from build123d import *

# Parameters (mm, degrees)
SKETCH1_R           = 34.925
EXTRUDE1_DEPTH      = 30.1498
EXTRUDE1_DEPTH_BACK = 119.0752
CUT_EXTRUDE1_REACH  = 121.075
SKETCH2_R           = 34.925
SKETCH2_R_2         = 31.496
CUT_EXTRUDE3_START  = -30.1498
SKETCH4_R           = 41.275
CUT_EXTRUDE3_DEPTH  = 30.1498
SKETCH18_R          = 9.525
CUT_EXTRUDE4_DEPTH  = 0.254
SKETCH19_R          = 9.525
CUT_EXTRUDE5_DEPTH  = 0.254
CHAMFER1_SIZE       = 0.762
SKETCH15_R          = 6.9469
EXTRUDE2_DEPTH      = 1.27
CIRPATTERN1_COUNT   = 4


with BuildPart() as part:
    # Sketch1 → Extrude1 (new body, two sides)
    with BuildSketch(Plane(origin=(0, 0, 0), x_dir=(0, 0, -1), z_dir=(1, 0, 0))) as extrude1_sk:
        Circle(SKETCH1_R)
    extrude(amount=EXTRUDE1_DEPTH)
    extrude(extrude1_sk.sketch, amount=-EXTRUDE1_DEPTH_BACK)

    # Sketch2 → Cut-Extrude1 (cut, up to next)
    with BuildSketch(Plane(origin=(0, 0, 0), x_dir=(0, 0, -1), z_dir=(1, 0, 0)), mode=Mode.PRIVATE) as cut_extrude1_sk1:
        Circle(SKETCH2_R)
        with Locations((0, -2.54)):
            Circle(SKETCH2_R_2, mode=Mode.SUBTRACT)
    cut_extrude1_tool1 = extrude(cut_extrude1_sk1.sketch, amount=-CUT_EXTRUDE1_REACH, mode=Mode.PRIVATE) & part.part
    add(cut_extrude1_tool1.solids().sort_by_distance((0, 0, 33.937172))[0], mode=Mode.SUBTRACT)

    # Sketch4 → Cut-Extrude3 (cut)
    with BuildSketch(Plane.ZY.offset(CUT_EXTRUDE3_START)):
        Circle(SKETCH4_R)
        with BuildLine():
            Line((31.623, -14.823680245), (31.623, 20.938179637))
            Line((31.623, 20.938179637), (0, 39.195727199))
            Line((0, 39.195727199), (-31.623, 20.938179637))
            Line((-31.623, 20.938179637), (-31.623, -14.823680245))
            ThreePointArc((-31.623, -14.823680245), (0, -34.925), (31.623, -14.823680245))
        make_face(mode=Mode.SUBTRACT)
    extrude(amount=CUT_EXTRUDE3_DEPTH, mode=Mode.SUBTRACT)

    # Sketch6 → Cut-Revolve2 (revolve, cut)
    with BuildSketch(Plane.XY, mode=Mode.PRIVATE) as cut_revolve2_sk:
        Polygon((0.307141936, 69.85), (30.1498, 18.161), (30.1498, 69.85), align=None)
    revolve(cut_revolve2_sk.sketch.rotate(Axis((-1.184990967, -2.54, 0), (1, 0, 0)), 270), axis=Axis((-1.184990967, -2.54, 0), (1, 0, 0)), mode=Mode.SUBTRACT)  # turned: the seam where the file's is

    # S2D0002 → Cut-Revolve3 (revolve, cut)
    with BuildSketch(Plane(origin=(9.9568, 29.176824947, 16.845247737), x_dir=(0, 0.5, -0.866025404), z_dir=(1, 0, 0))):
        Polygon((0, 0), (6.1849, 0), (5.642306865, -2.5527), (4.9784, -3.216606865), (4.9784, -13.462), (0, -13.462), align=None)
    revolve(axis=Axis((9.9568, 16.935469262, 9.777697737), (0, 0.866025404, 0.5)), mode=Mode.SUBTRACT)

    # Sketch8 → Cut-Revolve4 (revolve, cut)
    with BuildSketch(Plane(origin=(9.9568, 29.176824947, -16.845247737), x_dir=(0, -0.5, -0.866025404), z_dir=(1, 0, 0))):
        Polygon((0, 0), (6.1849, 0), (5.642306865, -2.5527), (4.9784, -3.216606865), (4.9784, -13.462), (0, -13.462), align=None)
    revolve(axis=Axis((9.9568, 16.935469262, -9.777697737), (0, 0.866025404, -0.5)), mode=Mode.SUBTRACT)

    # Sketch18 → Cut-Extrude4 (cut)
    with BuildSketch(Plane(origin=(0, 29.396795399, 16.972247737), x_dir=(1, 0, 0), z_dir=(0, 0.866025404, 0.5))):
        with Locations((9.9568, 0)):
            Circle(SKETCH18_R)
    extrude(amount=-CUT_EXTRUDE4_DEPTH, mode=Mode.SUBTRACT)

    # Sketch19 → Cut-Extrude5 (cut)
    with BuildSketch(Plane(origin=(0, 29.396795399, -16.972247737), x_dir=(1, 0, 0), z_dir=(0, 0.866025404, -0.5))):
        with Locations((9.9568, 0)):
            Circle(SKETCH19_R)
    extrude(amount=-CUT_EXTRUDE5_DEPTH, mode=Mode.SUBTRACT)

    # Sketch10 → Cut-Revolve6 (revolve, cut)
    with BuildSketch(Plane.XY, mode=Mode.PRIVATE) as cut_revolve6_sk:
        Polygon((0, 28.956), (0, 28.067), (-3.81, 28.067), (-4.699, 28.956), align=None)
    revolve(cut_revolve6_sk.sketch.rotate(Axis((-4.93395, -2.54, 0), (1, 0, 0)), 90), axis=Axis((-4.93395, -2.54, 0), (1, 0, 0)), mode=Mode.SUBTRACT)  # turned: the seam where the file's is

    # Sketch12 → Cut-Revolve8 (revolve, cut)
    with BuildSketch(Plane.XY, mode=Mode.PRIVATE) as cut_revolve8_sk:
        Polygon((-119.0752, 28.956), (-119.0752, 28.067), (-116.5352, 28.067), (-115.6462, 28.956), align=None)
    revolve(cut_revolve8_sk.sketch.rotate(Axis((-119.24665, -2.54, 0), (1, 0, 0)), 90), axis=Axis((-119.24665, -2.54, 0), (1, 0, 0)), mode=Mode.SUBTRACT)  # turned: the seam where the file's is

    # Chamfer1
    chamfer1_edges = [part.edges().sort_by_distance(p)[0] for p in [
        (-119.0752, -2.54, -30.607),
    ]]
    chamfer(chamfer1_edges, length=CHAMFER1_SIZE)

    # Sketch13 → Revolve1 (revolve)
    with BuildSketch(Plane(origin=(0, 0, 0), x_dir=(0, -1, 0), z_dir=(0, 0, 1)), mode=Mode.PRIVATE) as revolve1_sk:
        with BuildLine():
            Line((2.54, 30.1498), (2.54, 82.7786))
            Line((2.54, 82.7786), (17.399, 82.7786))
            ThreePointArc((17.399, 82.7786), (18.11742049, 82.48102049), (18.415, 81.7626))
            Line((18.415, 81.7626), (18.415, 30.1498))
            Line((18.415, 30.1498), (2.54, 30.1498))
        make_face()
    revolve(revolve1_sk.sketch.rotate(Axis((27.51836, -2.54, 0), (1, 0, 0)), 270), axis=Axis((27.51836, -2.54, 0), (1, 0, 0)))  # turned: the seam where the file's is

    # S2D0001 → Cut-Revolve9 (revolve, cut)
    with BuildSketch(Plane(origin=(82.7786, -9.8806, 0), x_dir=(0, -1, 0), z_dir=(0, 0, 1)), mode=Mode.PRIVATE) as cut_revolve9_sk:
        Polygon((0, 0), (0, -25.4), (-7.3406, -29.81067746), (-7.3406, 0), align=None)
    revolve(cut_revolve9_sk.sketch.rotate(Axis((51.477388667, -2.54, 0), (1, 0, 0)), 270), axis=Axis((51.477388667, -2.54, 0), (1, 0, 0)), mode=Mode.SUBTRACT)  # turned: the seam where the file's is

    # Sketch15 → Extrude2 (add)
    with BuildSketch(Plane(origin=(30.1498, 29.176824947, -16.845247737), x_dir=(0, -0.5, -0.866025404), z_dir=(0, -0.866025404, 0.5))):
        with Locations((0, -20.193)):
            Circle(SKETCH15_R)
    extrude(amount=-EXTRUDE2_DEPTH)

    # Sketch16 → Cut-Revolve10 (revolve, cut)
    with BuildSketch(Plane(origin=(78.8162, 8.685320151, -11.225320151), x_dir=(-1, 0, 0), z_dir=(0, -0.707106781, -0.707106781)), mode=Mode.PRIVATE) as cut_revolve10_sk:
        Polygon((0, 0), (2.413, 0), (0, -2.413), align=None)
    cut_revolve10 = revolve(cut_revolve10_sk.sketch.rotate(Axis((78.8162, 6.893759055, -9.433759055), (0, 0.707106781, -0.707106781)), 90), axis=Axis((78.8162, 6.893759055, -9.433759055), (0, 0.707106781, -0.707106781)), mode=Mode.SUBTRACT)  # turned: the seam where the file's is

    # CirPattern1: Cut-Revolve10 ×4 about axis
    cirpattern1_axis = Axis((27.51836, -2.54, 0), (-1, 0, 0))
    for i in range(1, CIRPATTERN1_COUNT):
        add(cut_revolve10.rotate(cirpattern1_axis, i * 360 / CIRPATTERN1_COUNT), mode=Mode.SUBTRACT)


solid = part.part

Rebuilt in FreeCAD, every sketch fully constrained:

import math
import FreeCAD as App
import Part
import Sketcher
from FreeCAD import Vector
Q = App.Units.Quantity


def edges_at(feature, points):
    """Names of the edges that pass closest to the given points."""
    edges = feature.Shape.Edges
    near = lambda p: min(range(len(edges)), key=lambda i: edges[i].distToShape(Part.Vertex(*p))[0])
    return sorted({f"Edge{near(p) + 1}" for p in points})

doc = App.newDocument("Part")
body = doc.addObject("PartDesign::Body", "Body")

# Sketch on YZ plane
sketch1 = body.newObject("Sketcher::SketchObject", "Sketch")
sketch1.AttachmentSupport = (doc.getObject("YZ_Plane"), [""])
sketch1.MapMode = "FlatFace"
sketch1.addGeometry(Part.Circle(Vector(0, 0, 0), Vector(0, 0, 1), 35), False)
sketch1.addConstraint(Sketcher.Constraint("Coincident", 0, 3, -1, 1))
sketch1.addConstraint(Sketcher.Constraint("Diameter", 0, Q("2.75 in")))
pad1 = body.newObject("PartDesign::Pad", "Pad")
pad1.Profile = sketch1
pad1.Type = "TwoLengths"
pad1.Length = Q("1.187 in")
pad1.Length2 = Q("4.688 in")

# Sketch on YZ plane
sketch2 = body.newObject("Sketcher::SketchObject", "Sketch001")
sketch2.AttachmentSupport = (doc.getObject("YZ_Plane"), [""])
sketch2.MapMode = "FlatFace"
sketch2.addGeometry(Part.Circle(Vector(0, 0, 0), Vector(0, 0, 1), 35), False)
sketch2.addGeometry(Part.Circle(Vector(-3, 0, 0), Vector(0, 0, 1), 31), False)
sketch2.addConstraint(Sketcher.Constraint("Coincident", 0, 3, -1, 1))
sketch2.addConstraint(Sketcher.Constraint("PointOnObject", 1, 3, -1))
sketch2.addConstraint(Sketcher.Constraint("Diameter", 0, Q("2.75 in")))
sketch2.addConstraint(Sketcher.Constraint("Diameter", 1, Q("2.48 in")))
sketch2.addConstraint(Sketcher.Constraint("DistanceX", 1, 3, -1, 1, Q("0.1 in")))
pocket1 = body.newObject("PartDesign::Pocket", "Pocket")
pocket1.Profile = sketch2
pocket1.Type = "UpToFirst"

# Sketch on YZ plane
sketch3 = body.newObject("Sketcher::SketchObject", "Sketch002")
sketch3.AttachmentSupport = (doc.getObject("YZ_Plane"), [""])
sketch3.MapMode = "FlatFace"
sketch3.AttachmentOffset = App.Placement(Vector(0, 0, 1.187 * 25.4), App.Rotation())
sketch3.addGeometry(Part.Circle(Vector(0, 0, 0), Vector(0, 0, 1), 41), False)
sketch3.addGeometry(Part.LineSegment(Vector(21, 32, 0), Vector(-15, 32, 0)), False)
sketch3.addGeometry(Part.ArcOfCircle(Part.Circle(Vector(0, 0, 0), Vector(0, 0, 1), 35), math.radians(115), math.radians(245)), False)
sketch3.addGeometry(Part.LineSegment(Vector(-15, -32, 0), Vector(21, -32, 0)), False)
sketch3.addGeometry(Part.LineSegment(Vector(21, -32, 0), Vector(39, 0, 0)), False)
sketch3.addGeometry(Part.LineSegment(Vector(39, 0, 0), Vector(21, 32, 0)), False)
sketch3.addConstraint(Sketcher.Constraint("Coincident", 1, 2, 2, 1))
sketch3.addConstraint(Sketcher.Constraint("Coincident", 2, 2, 3, 1))
sketch3.addConstraint(Sketcher.Constraint("Coincident", 3, 2, 4, 1))
sketch3.addConstraint(Sketcher.Constraint("Coincident", 4, 2, 5, 1))
sketch3.addConstraint(Sketcher.Constraint("Coincident", 5, 2, 1, 1))
sketch3.addConstraint(Sketcher.Constraint("Horizontal", 1))
sketch3.addConstraint(Sketcher.Constraint("Horizontal", 3))
sketch3.addConstraint(Sketcher.Constraint("Coincident", 0, 3, -1, 1))
sketch3.addConstraint(Sketcher.Constraint("Coincident", 2, 3, -1, 1))
sketch3.addConstraint(Sketcher.Constraint("Symmetric", 3, 2, 5, 2, -1))
sketch3.addConstraint(Sketcher.Constraint("PointOnObject", 4, 2, -1))
sketch3.addConstraint(Sketcher.Constraint("Diameter", 0, Q("3.25 in")))
sketch3.addConstraint(Sketcher.Constraint("Angle", 4, Q("60 deg")))
sketch3.addConstraint(Sketcher.Constraint("Radius", 2, Q("1.375 in")))
sketch3.addConstraint(Sketcher.Constraint("DistanceY", 2, 2, 1, 2, Q("2.49 in")))
sketch3.addConstraint(Sketcher.Constraint("DistanceX", 1, 2, 1, 1, Q("35.76186 mm")))
pocket2 = body.newObject("PartDesign::Pocket", "Pocket001")
pocket2.Profile = sketch3
pocket2.Length = Q("1.187 in")

# Sketch on XY plane
sketch4 = body.newObject("Sketcher::SketchObject", "Sketch003")
sketch4.AttachmentSupport = (doc.getObject("XY_Plane"), [""])
sketch4.MapMode = "FlatFace"
sketch4.addGeometry(Part.LineSegment(Vector(0, 70, 0), Vector(30, 18, 0)), False)
sketch4.addGeometry(Part.LineSegment(Vector(30, 18, 0), Vector(30, 70, 0)), False)
sketch4.addGeometry(Part.LineSegment(Vector(30, 70, 0), Vector(0, 70, 0)), False)
sketch4.addGeometry(Part.LineSegment(Vector(0, -3, 0), Vector(30, -3, 0)), True)  # axis
sketch4.addConstraint(Sketcher.Constraint("Coincident", 0, 2, 1, 1))
sketch4.addConstraint(Sketcher.Constraint("Coincident", 1, 2, 2, 1))
sketch4.addConstraint(Sketcher.Constraint("Coincident", 2, 2, 0, 1))
sketch4.addConstraint(Sketcher.Constraint("Vertical", 1))
sketch4.addConstraint(Sketcher.Constraint("Horizontal", 2))
sketch4.addConstraint(Sketcher.Constraint("Horizontal", 3))
sketch4.addConstraint(Sketcher.Constraint("Vertical", 2, 2, 3, 1))
sketch4.addConstraint(Sketcher.Constraint("Vertical", 1, 2, 3, 2))
sketch4.addConstraint(Sketcher.Constraint("Angle", 0, Q("-60 deg")))
sketch4.addConstraint(Sketcher.Constraint("DistanceY", 3, 1, -1, 1, Q("0.1 in")))
sketch4.addConstraint(Sketcher.Constraint("DistanceY", 1, 1, 1, 2, Q("2.035 in")))
sketch4.addConstraint(Sketcher.Constraint("DistanceY", -1, 1, 1, 2, Q("2.75 in")))
sketch4.addConstraint(Sketcher.Constraint("DistanceX", -1, 1, 0, 2, Q("1.187 in")))
groove = body.newObject("PartDesign::Groove", "Groove")
groove.Profile = sketch4
groove.ReferenceAxis = (sketch4, ["Axis0"])
groove.Angle = 360

# Sketch on YZ plane
sketch5 = body.newObject("Sketcher::SketchObject", "Sketch004")
sketch5.AttachmentSupport = (doc.getObject("YZ_Plane"), [""])
sketch5.MapMode = "FlatFace"
sketch5.AttachmentOffset = App.Placement(Vector(0, 0, 0.392 * 25.4), App.Rotation())
sketch5.addGeometry(Part.LineSegment(Vector(32.3, 11.5, 0), Vector(29.2, 16.8, 0)), False)
sketch5.addGeometry(Part.LineSegment(Vector(29.2, 16.8, 0), Vector(17.5, 10.1, 0)), False)
sketch5.addGeometry(Part.LineSegment(Vector(17.5, 10.1, 0), Vector(20, 5.8, 0)), False)
sketch5.addGeometry(Part.LineSegment(Vector(20, 5.8, 0), Vector(28.9, 10.9, 0)), False)
sketch5.addGeometry(Part.LineSegment(Vector(28.9, 10.9, 0), Vector(29.8, 10.7, 0)), False)
sketch5.addGeometry(Part.LineSegment(Vector(29.8, 10.7, 0), Vector(32.3, 11.5, 0)), False)
sketch5.addGeometry(Part.LineSegment(Vector(17.5, 10.1, 0), Vector(29.2, 16.8, 0)), True)  # axis
sketch5.addConstraint(Sketcher.Constraint("Coincident", 0, 2, 1, 1))
sketch5.addConstraint(Sketcher.Constraint("Coincident", 1, 2, 2, 1))
sketch5.addConstraint(Sketcher.Constraint("Coincident", 2, 2, 3, 1))
sketch5.addConstraint(Sketcher.Constraint("Coincident", 3, 2, 4, 1))
sketch5.addConstraint(Sketcher.Constraint("Coincident", 4, 2, 5, 1))
sketch5.addConstraint(Sketcher.Constraint("Coincident", 5, 2, 0, 1))
sketch5.addConstraint(Sketcher.Constraint("Coincident", 6, 1, 1, 2))
sketch5.addConstraint(Sketcher.Constraint("Coincident", 6, 2, 0, 2))
sketch5.addConstraint(Sketcher.Constraint("Perpendicular", 0, 1))
sketch5.addConstraint(Sketcher.Constraint("Perpendicular", 1, 2))
sketch5.addConstraint(Sketcher.Constraint("Perpendicular", 2, 3))
sketch5.addConstraint(Sketcher.Constraint("Angle", 0, Q("120 deg")))
sketch5.addConstraint(Sketcher.Constraint("Angle", 4, Q("-15 deg")))
sketch5.addConstraint(Sketcher.Constraint("Angle", 5, Q("18 deg")))
sketch5.addConstraint(Sketcher.Constraint("Distance", 1, Q("0.53 in")))
sketch5.addConstraint(Sketcher.Constraint("Distance", 2, Q("0.196 in")))
sketch5.addConstraint(Sketcher.Constraint("Distance", 0, Q("0.2435 in")))
sketch5.addConstraint(Sketcher.Constraint("DistanceX", 4, 2, 5, 2, Q("2.482 mm")))
sketch5.addConstraint(Sketcher.Constraint("DistanceX", -1, 1, 1, 2, Q("17.518391 mm")))
sketch5.addConstraint(Sketcher.Constraint("DistanceY", -1, 1, 0, 2, Q("16.845248 mm")))
groove2 = body.newObject("PartDesign::Groove", "Groove001")
groove2.Profile = sketch5
groove2.ReferenceAxis = (sketch5, ["Axis0"])
groove2.Angle = 360

# Sketch on YZ plane
sketch6 = body.newObject("Sketcher::SketchObject", "Sketch005")
sketch6.AttachmentSupport = (doc.getObject("YZ_Plane"), [""])
sketch6.MapMode = "FlatFace"
sketch6.AttachmentOffset = App.Placement(Vector(0, 0, 0.392 * 25.4), App.Rotation())
sketch6.addGeometry(Part.LineSegment(Vector(26.1, -22.2, 0), Vector(29.2, -16.8, 0)), False)
sketch6.addGeometry(Part.LineSegment(Vector(29.2, -16.8, 0), Vector(17.5, -10.1, 0)), False)
sketch6.addGeometry(Part.LineSegment(Vector(17.5, -10.1, 0), Vector(15, -14.4, 0)), False)
sketch6.addGeometry(Part.LineSegment(Vector(15, -14.4, 0), Vector(23.9, -19.5, 0)), False)
sketch6.addGeometry(Part.LineSegment(Vector(23.9, -19.5, 0), Vector(24.1, -20.5, 0)), False)
sketch6.addGeometry(Part.LineSegment(Vector(24.1, -20.5, 0), Vector(26.1, -22.2, 0)), False)
sketch6.addGeometry(Part.LineSegment(Vector(17.5, -10.1, 0), Vector(29.2, -16.8, 0)), True)  # axis
sketch6.addConstraint(Sketcher.Constraint("Coincident", 0, 2, 1, 1))
sketch6.addConstraint(Sketcher.Constraint("Coincident", 1, 2, 2, 1))
sketch6.addConstraint(Sketcher.Constraint("Coincident", 2, 2, 3, 1))
sketch6.addConstraint(Sketcher.Constraint("Coincident", 3, 2, 4, 1))
sketch6.addConstraint(Sketcher.Constraint("Coincident", 4, 2, 5, 1))
sketch6.addConstraint(Sketcher.Constraint("Coincident", 5, 2, 0, 1))
sketch6.addConstraint(Sketcher.Constraint("Coincident", 6, 1, 1, 2))
sketch6.addConstraint(Sketcher.Constraint("Coincident", 6, 2, 0, 2))
sketch6.addConstraint(Sketcher.Constraint("Perpendicular", 0, 1))
sketch6.addConstraint(Sketcher.Constraint("Perpendicular", 1, 2))
sketch6.addConstraint(Sketcher.Constraint("Perpendicular", 2, 3))
sketch6.addConstraint(Sketcher.Constraint("Angle", 0, Q("60 deg")))
sketch6.addConstraint(Sketcher.Constraint("Angle", 4, Q("-75 deg")))
sketch6.addConstraint(Sketcher.Constraint("Angle", 5, Q("-42 deg")))
sketch6.addConstraint(Sketcher.Constraint("Distance", 1, Q("0.53 in")))
sketch6.addConstraint(Sketcher.Constraint("Distance", 2, Q("0.196 in")))
sketch6.addConstraint(Sketcher.Constraint("Distance", 0, Q("0.2435 in")))
sketch6.addConstraint(Sketcher.Constraint("Distance", 5, Q("2.609729 mm")))
sketch6.addConstraint(Sketcher.Constraint("DistanceX", -1, 1, 1, 2, Q("17.518391 mm")))
sketch6.addConstraint(Sketcher.Constraint("DistanceY", 2, 2, -1, 1, Q("14.425669 mm")))
groove3 = body.newObject("PartDesign::Groove", "Groove002")
groove3.Profile = sketch6
groove3.ReferenceAxis = (sketch6, ["Axis0"])
groove3.Angle = 360

# Sketch on an angled plane
sketch7 = body.newObject("Sketcher::SketchObject", "Sketch006")
sketch7.Placement = App.Placement(Vector(0, 29.396795, 16.972248), App.Rotation(Vector(1, 0, 0), Vector(0, 0.5, -0.866025404), Vector(0, 0.866025404, 0.5), "ZXY"))
sketch7.addGeometry(Part.Circle(Vector(10, 0, 0), Vector(0, 0, 1), 10), False)
sketch7.addConstraint(Sketcher.Constraint("PointOnObject", 0, 3, -1))
sketch7.addConstraint(Sketcher.Constraint("Diameter", 0, Q("0.75 in")))
sketch7.addConstraint(Sketcher.Constraint("DistanceX", -1, 1, 0, 3, Q("0.392 in")))
pocket3 = body.newObject("PartDesign::Pocket", "Pocket002")
pocket3.Profile = sketch7
pocket3.Length = Q("0.01 in")

# Sketch on an angled plane
sketch8 = body.newObject("Sketcher::SketchObject", "Sketch007")
sketch8.Placement = App.Placement(Vector(0, 29.396795, -16.972248), App.Rotation(Vector(1, 0, 0), Vector(0, -0.5, -0.866025404), Vector(0, 0.866025404, -0.5), "ZXY"))
sketch8.addGeometry(Part.Circle(Vector(10, 0, 0), Vector(0, 0, 1), 10), False)
sketch8.addConstraint(Sketcher.Constraint("PointOnObject", 0, 3, -1))
sketch8.addConstraint(Sketcher.Constraint("Diameter", 0, Q("0.75 in")))
sketch8.addConstraint(Sketcher.Constraint("DistanceX", -1, 1, 0, 3, Q("0.392 in")))
pocket4 = body.newObject("PartDesign::Pocket", "Pocket003")
pocket4.Profile = sketch8
pocket4.Length = Q("0.01 in")

# Sketch on XY plane
sketch9 = body.newObject("Sketcher::SketchObject", "Sketch008")
sketch9.AttachmentSupport = (doc.getObject("XY_Plane"), [""])
sketch9.MapMode = "FlatFace"
sketch9.addGeometry(Part.LineSegment(Vector(0, 28.1, 0), Vector(0, 29, 0)), False)
sketch9.addGeometry(Part.LineSegment(Vector(0, 29, 0), Vector(-4.7, 29, 0)), False)
sketch9.addGeometry(Part.LineSegment(Vector(-4.7, 29, 0), Vector(-3.8, 28.1, 0)), False)
sketch9.addGeometry(Part.LineSegment(Vector(-3.8, 28.1, 0), Vector(0, 28.1, 0)), False)
sketch9.addGeometry(Part.LineSegment(Vector(-4.7, -2.5, 0), Vector(0, -2.5, 0)), True)  # axis
sketch9.addConstraint(Sketcher.Constraint("Coincident", 0, 2, 1, 1))
sketch9.addConstraint(Sketcher.Constraint("Coincident", 1, 2, 2, 1))
sketch9.addConstraint(Sketcher.Constraint("Coincident", 2, 2, 3, 1))
sketch9.addConstraint(Sketcher.Constraint("Coincident", 3, 2, 0, 1))
sketch9.addConstraint(Sketcher.Constraint("Vertical", 0))
sketch9.addConstraint(Sketcher.Constraint("Horizontal", 1))
sketch9.addConstraint(Sketcher.Constraint("Horizontal", 3))
sketch9.addConstraint(Sketcher.Constraint("Horizontal", 4))
sketch9.addConstraint(Sketcher.Constraint("PointOnObject", 0, 2, -2))
sketch9.addConstraint(Sketcher.Constraint("PointOnObject", 4, 2, -2))
sketch9.addConstraint(Sketcher.Constraint("Vertical", 1, 2, 4, 1))
sketch9.addConstraint(Sketcher.Constraint("Angle", 2, Q("-45 deg")))
sketch9.addConstraint(Sketcher.Constraint("DistanceX", 3, 1, 3, 2, Q("0.15 in")))
sketch9.addConstraint(Sketcher.Constraint("DistanceY", 4, 1, -1, 1, Q("0.1 in")))
sketch9.addConstraint(Sketcher.Constraint("DistanceX", 1, 2, 1, 1, Q("0.185 in")))
sketch9.addConstraint(Sketcher.Constraint("DistanceY", -1, 1, 0, 2, Q("1.14 in")))
groove4 = body.newObject("PartDesign::Groove", "Groove003")
groove4.Profile = sketch9
groove4.ReferenceAxis = (sketch9, ["Axis0"])
groove4.Angle = 360

# Sketch on XY plane
sketch10 = body.newObject("Sketcher::SketchObject", "Sketch009")
sketch10.AttachmentSupport = (doc.getObject("XY_Plane"), [""])
sketch10.MapMode = "FlatFace"
sketch10.addGeometry(Part.LineSegment(Vector(-119.1, 29, 0), Vector(-119.1, 28.1, 0)), False)
sketch10.addGeometry(Part.LineSegment(Vector(-119.1, 28.1, 0), Vector(-116.5, 28.1, 0)), False)
sketch10.addGeometry(Part.LineSegment(Vector(-116.5, 28.1, 0), Vector(-115.6, 29, 0)), False)
sketch10.addGeometry(Part.LineSegment(Vector(-115.6, 29, 0), Vector(-119.1, 29, 0)), False)
sketch10.addGeometry(Part.LineSegment(Vector(-119.1, -2.5, 0), Vector(-115.6, -2.5, 0)), True)  # axis
sketch10.addConstraint(Sketcher.Constraint("Coincident", 0, 2, 1, 1))
sketch10.addConstraint(Sketcher.Constraint("Coincident", 1, 2, 2, 1))
sketch10.addConstraint(Sketcher.Constraint("Coincident", 2, 2, 3, 1))
sketch10.addConstraint(Sketcher.Constraint("Coincident", 3, 2, 0, 1))
sketch10.addConstraint(Sketcher.Constraint("Vertical", 0))
sketch10.addConstraint(Sketcher.Constraint("Horizontal", 1))
sketch10.addConstraint(Sketcher.Constraint("Horizontal", 3))
sketch10.addConstraint(Sketcher.Constraint("Horizontal", 4))
sketch10.addConstraint(Sketcher.Constraint("Vertical", 3, 2, 4, 1))
sketch10.addConstraint(Sketcher.Constraint("Vertical", 2, 2, 4, 2))
sketch10.addConstraint(Sketcher.Constraint("DistanceX", 1, 1, 1, 2, Q("0.1 in")))
sketch10.addConstraint(Sketcher.Constraint("Angle", 2, Q("45 deg")))
sketch10.addConstraint(Sketcher.Constraint("DistanceY", 4, 1, -1, 1, Q("0.1 in")))
sketch10.addConstraint(Sketcher.Constraint("DistanceX", 3, 2, 3, 1, Q("0.135 in")))
sketch10.addConstraint(Sketcher.Constraint("DistanceY", -1, 1, 2, 2, Q("1.14 in")))
sketch10.addConstraint(Sketcher.Constraint("DistanceX", 0, 2, -1, 1, Q("4.688 in")))
groove5 = body.newObject("PartDesign::Groove", "Groove004")
groove5.Profile = sketch10
groove5.ReferenceAxis = (sketch10, ["Axis0"])
groove5.Angle = 360
doc.recompute()

chamfer = body.newObject("PartDesign::Chamfer", "Chamfer")
chamfer.Base = (groove5, edges_at(groove5, [(-119.075, -2.54, -30.607)]))
chamfer.Size = Q("0.03 in")

# Sketch on XY plane
sketch11 = body.newObject("Sketcher::SketchObject", "Sketch010")
sketch11.AttachmentSupport = (doc.getObject("XY_Plane"), [""])
sketch11.MapMode = "FlatFace"
sketch11.addGeometry(Part.LineSegment(Vector(82.8, -2.5, 0), Vector(30.1, -2.5, 0)), False)
sketch11.addGeometry(Part.LineSegment(Vector(30.1, -2.5, 0), Vector(30.1, -18.4, 0)), False)
sketch11.addGeometry(Part.LineSegment(Vector(30.1, -18.4, 0), Vector(81.8, -18.4, 0)), False)
sketch11.addGeometry(Part.ArcOfCircle(Part.Circle(Vector(81.8, -17.4, 0), Vector(0, 0, 1), 1), math.radians(-90), math.radians(0)), False)
sketch11.addGeometry(Part.LineSegment(Vector(82.8, -17.4, 0), Vector(82.8, -2.5, 0)), False)
sketch11.addGeometry(Part.LineSegment(Vector(30.1, -2.5, 0), Vector(82.8, -2.5, 0)), True)  # axis
sketch11.addConstraint(Sketcher.Constraint("Coincident", 0, 2, 1, 1))
sketch11.addConstraint(Sketcher.Constraint("Coincident", 1, 2, 2, 1))
sketch11.addConstraint(Sketcher.Constraint("Tangent", 2, 2, 3, 1))
sketch11.addConstraint(Sketcher.Constraint("Tangent", 3, 2, 4, 1))
sketch11.addConstraint(Sketcher.Constraint("Coincident", 4, 2, 0, 1))
sketch11.addConstraint(Sketcher.Constraint("Horizontal", 0))
sketch11.addConstraint(Sketcher.Constraint("Vertical", 1))
sketch11.addConstraint(Sketcher.Constraint("Horizontal", 2))
sketch11.addConstraint(Sketcher.Constraint("Vertical", 4))
sketch11.addConstraint(Sketcher.Constraint("Horizontal", 5))
sketch11.addConstraint(Sketcher.Constraint("Coincident", 5, 1, 0, 2))
sketch11.addConstraint(Sketcher.Constraint("Vertical", 3, 2, 5, 2))
sketch11.addConstraint(Sketcher.Constraint("Radius", 3, Q("0.04 in")))
sketch11.addConstraint(Sketcher.Constraint("DistanceY", 0, 2, -1, 1, Q("0.1 in")))
sketch11.addConstraint(Sketcher.Constraint("DistanceX", 0, 2, 0, 1, Q("2.072 in")))
sketch11.addConstraint(Sketcher.Constraint("DistanceY", 1, 2, 1, 1, Q("0.625 in")))
sketch11.addConstraint(Sketcher.Constraint("DistanceX", -1, 1, 3, 3, Q("3.219 in")))
revolution = body.newObject("PartDesign::Revolution", "Revolution")
revolution.Profile = sketch11
revolution.ReferenceAxis = (sketch11, ["Axis0"])
revolution.Angle = 360

# Sketch on XY plane
sketch12 = body.newObject("Sketcher::SketchObject", "Sketch011")
sketch12.AttachmentSupport = (doc.getObject("XY_Plane"), [""])
sketch12.MapMode = "FlatFace"
sketch12.addGeometry(Part.LineSegment(Vector(57, -10, 0), Vector(83, -10, 0)), False)
sketch12.addGeometry(Part.LineSegment(Vector(83, -10, 0), Vector(83, -3, 0)), False)
sketch12.addGeometry(Part.LineSegment(Vector(83, -3, 0), Vector(53, -3, 0)), False)
sketch12.addGeometry(Part.LineSegment(Vector(53, -3, 0), Vector(57, -10, 0)), False)
sketch12.addGeometry(Part.LineSegment(Vector(53, -3, 0), Vector(83, -3, 0)), True)  # axis
sketch12.addConstraint(Sketcher.Constraint("Coincident", 0, 2, 1, 1))
sketch12.addConstraint(Sketcher.Constraint("Coincident", 1, 2, 2, 1))
sketch12.addConstraint(Sketcher.Constraint("Coincident", 2, 2, 3, 1))
sketch12.addConstraint(Sketcher.Constraint("Coincident", 3, 2, 0, 1))
sketch12.addConstraint(Sketcher.Constraint("Horizontal", 0))
sketch12.addConstraint(Sketcher.Constraint("Vertical", 1))
sketch12.addConstraint(Sketcher.Constraint("Horizontal", 2))
sketch12.addConstraint(Sketcher.Constraint("Horizontal", 4))
sketch12.addConstraint(Sketcher.Constraint("Coincident", 4, 1, 2, 2))
sketch12.addConstraint(Sketcher.Constraint("Vertical", 0, 2, 4, 2))
sketch12.addConstraint(Sketcher.Constraint("DistanceX", 0, 1, 0, 2, Q("1 in")))
sketch12.addConstraint(Sketcher.Constraint("Angle", 3, Q("-59 deg")))
sketch12.addConstraint(Sketcher.Constraint("DistanceY", 1, 2, -1, 1, Q("0.1 in")))
sketch12.addConstraint(Sketcher.Constraint("DistanceY", 1, 1, 1, 2, Q("0.289 in")))
sketch12.addConstraint(Sketcher.Constraint("DistanceX", -1, 1, 0, 2, Q("3.259 in")))
groove6 = body.newObject("PartDesign::Groove", "Groove005")
groove6.Profile = sketch12
groove6.ReferenceAxis = (sketch12, ["Axis0"])
groove6.Angle = 360

# Sketch on an angled plane
sketch13 = body.newObject("Sketcher::SketchObject", "Sketch012")
sketch13.Placement = App.Placement(Vector(30.1498, 29.176825, -16.845248), App.Rotation(Vector(0, -0.5, -0.866025404), Vector(1, 0, 0), Vector(0, -0.866025404, 0.5), "ZXY"))
sketch13.addGeometry(Part.Circle(Vector(0, -20, 0), Vector(0, 0, 1), 7), False)
sketch13.addConstraint(Sketcher.Constraint("PointOnObject", 0, 3, -2))
sketch13.addConstraint(Sketcher.Constraint("Diameter", 0, Q("0.547 in")))
sketch13.addConstraint(Sketcher.Constraint("DistanceY", 0, 3, -1, 1, Q("0.795 in")))
pad2 = body.newObject("PartDesign::Pad", "Pad001")
pad2.Profile = sketch13
pad2.Length = Q("0.05 in")
pad2.Reversed = True

# Sketch on an angled plane
sketch14 = body.newObject("Sketcher::SketchObject", "Sketch013")
sketch14.Placement = App.Placement(Vector(78.8162, 8.68532, -11.22532), App.Rotation(Vector(-1, 0, 0), Vector(0, 0.707106781, -0.707106781), Vector(0, -0.707106781, -0.707106781), "ZXY"))
sketch14.addGeometry(Part.LineSegment(Vector(2.4, 0, 0), Vector(0, 0, 0)), False)
sketch14.addGeometry(Part.LineSegment(Vector(0, 0, 0), Vector(0, -2.4, 0)), False)
sketch14.addGeometry(Part.LineSegment(Vector(0, -2.4, 0), Vector(2.4, 0, 0)), False)
sketch14.addConstraint(Sketcher.Constraint("Coincident", 0, 2, 1, 1))
sketch14.addConstraint(Sketcher.Constraint("Coincident", 1, 2, 2, 1))
sketch14.addConstraint(Sketcher.Constraint("Coincident", 2, 2, 0, 1))
sketch14.addConstraint(Sketcher.Constraint("Horizontal", 0))
sketch14.addConstraint(Sketcher.Constraint("Vertical", 1))
sketch14.addConstraint(Sketcher.Constraint("Coincident", 0, 2, -1, 1))
sketch14.addConstraint(Sketcher.Constraint("Equal", 0, 1))
sketch14.addConstraint(Sketcher.Constraint("DistanceX", 0, 2, 0, 1, Q("0.095 in")))
groove7 = body.newObject("PartDesign::Groove", "Groove006")
groove7.Profile = sketch14
groove7.ReferenceAxis = (sketch14, ["V_Axis"])
groove7.Angle = 360
doc.recompute()

datumline = body.newObject("PartDesign::Line", "DatumLine")
datumline.Placement = App.Placement(Vector(0, -2.54, 0), App.Rotation(Vector(0, 0, 1), Vector(-1, 0, 0)))
polarpattern = body.newObject("PartDesign::PolarPattern", "PolarPattern")
polarpattern.Originals = [groove7]
polarpattern.Axis = (datumline, [""])
polarpattern.Angle = 360
polarpattern.Occurrences = 4
body.Tip = polarpattern

doc.recompute()
